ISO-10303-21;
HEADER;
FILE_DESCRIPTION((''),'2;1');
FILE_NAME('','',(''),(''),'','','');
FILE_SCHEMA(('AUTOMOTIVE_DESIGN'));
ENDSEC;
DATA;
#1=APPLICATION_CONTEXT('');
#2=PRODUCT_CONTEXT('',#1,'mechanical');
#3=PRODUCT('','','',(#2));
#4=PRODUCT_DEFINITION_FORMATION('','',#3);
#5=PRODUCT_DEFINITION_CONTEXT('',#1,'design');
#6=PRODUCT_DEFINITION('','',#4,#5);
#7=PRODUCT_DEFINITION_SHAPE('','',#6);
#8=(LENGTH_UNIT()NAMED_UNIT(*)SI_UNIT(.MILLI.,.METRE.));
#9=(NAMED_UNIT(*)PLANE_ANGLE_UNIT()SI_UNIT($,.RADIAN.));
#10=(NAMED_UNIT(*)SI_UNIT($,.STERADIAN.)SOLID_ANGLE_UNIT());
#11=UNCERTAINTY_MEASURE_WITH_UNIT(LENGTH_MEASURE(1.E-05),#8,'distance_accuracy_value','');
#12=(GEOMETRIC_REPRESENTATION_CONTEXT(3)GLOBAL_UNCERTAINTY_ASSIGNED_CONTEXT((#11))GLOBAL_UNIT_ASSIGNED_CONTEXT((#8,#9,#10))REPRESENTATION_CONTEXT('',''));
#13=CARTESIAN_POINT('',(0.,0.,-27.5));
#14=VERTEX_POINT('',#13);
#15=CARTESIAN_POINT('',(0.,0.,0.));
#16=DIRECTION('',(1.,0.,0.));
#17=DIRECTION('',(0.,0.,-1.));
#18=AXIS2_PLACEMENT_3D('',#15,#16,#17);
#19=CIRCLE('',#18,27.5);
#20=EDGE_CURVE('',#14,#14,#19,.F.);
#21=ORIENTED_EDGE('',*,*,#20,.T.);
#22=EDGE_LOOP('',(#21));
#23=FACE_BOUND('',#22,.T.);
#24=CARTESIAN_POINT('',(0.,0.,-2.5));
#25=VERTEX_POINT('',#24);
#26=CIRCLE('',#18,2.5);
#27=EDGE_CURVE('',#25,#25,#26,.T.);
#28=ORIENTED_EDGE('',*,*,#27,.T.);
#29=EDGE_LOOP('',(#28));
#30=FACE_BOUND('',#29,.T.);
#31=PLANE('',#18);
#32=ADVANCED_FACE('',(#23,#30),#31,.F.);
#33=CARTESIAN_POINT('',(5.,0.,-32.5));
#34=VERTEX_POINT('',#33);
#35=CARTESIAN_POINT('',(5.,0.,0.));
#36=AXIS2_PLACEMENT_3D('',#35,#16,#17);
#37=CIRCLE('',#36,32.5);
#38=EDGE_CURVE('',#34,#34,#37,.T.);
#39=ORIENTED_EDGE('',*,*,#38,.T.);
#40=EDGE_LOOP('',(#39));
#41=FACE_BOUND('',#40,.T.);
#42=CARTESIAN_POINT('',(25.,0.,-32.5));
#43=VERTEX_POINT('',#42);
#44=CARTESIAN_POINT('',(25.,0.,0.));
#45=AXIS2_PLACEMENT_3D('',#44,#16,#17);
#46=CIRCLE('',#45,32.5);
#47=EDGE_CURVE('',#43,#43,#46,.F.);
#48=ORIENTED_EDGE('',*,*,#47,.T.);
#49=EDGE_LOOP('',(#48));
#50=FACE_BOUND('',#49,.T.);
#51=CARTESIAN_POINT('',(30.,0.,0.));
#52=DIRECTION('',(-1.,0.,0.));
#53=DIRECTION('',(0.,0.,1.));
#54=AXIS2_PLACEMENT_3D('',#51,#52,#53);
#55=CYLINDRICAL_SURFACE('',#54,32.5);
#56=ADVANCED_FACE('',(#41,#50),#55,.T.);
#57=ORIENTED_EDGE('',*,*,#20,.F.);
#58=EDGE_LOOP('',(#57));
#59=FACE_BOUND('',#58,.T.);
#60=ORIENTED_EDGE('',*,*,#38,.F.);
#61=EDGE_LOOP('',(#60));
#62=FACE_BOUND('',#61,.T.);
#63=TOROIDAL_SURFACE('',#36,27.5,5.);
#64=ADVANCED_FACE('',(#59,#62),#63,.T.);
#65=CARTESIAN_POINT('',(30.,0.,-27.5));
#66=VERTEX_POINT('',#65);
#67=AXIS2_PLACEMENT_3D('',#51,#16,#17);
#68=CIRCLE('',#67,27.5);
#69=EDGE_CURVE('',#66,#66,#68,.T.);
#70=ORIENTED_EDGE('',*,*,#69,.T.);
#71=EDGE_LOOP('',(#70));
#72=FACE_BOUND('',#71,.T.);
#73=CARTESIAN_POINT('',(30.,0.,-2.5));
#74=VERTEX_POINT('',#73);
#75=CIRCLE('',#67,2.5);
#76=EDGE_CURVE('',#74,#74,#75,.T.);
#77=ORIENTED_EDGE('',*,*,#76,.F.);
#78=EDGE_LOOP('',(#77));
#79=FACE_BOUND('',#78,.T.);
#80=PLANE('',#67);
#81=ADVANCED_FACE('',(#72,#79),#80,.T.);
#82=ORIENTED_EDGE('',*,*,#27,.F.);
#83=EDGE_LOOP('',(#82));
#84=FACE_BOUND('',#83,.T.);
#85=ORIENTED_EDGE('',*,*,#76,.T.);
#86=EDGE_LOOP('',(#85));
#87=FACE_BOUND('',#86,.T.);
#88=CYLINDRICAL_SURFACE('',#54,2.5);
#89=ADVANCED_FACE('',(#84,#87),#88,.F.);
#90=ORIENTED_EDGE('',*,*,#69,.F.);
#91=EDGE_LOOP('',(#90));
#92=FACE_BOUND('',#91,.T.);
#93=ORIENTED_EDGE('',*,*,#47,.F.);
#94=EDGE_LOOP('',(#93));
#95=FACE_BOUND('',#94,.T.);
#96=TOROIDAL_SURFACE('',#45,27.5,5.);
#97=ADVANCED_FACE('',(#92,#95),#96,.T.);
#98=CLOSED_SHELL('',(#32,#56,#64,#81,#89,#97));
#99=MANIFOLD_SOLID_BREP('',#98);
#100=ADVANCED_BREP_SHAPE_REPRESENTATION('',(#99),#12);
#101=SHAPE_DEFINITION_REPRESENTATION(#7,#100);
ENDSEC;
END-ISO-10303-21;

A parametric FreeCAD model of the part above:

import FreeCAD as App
import Part
import Sketcher

V = App.Vector


def edges_at(feature, points):
    """Names of the edges that pass closest to the given points."""
    edges = feature.Shape.Edges
    near = lambda p: min(range(len(edges)), key=lambda i: edges[i].distToShape(Part.Vertex(*p))[0])
    return sorted({f"Edge{near(p) + 1}" for p in points})

doc = App.newDocument("Part")
body = doc.addObject("PartDesign::Body", "Body")

sketch1 = doc.addObject("Sketcher::SketchObject", "Sketch")
body.addObject(sketch1)
sketch1.AttachmentSupport = (doc.YZ_Plane, [""])
sketch1.MapMode = "FlatFace"
sketch1.addGeometry([
    Part.Circle(V(0, 0, 0), V(0, 0, 1), 32.5),
    Part.Circle(V(0, 0, 0), V(0, 0, 1), 2.5),
], False)
sketch1.addConstraint([
    Sketcher.Constraint("Coincident", 0, 3, -1, 1),
    Sketcher.Constraint("Coincident", 1, 3, -1, 1),
    Sketcher.Constraint("Diameter", 0, 65.0),
    Sketcher.Constraint("Diameter", 1, 5.0),
])
pad1 = doc.addObject("PartDesign::Pad", "Pad")
body.addObject(pad1)
pad1.Profile = sketch1
pad1.Length = 30
doc.recompute()

fillet = doc.addObject("PartDesign::Fillet", "Fillet")
body.addObject(fillet)
fillet.Base = (pad1, edges_at(pad1, [(0, 0, 32.5), (30, 0, 32.5)]))
fillet.Radius = 5

doc.recompute()
